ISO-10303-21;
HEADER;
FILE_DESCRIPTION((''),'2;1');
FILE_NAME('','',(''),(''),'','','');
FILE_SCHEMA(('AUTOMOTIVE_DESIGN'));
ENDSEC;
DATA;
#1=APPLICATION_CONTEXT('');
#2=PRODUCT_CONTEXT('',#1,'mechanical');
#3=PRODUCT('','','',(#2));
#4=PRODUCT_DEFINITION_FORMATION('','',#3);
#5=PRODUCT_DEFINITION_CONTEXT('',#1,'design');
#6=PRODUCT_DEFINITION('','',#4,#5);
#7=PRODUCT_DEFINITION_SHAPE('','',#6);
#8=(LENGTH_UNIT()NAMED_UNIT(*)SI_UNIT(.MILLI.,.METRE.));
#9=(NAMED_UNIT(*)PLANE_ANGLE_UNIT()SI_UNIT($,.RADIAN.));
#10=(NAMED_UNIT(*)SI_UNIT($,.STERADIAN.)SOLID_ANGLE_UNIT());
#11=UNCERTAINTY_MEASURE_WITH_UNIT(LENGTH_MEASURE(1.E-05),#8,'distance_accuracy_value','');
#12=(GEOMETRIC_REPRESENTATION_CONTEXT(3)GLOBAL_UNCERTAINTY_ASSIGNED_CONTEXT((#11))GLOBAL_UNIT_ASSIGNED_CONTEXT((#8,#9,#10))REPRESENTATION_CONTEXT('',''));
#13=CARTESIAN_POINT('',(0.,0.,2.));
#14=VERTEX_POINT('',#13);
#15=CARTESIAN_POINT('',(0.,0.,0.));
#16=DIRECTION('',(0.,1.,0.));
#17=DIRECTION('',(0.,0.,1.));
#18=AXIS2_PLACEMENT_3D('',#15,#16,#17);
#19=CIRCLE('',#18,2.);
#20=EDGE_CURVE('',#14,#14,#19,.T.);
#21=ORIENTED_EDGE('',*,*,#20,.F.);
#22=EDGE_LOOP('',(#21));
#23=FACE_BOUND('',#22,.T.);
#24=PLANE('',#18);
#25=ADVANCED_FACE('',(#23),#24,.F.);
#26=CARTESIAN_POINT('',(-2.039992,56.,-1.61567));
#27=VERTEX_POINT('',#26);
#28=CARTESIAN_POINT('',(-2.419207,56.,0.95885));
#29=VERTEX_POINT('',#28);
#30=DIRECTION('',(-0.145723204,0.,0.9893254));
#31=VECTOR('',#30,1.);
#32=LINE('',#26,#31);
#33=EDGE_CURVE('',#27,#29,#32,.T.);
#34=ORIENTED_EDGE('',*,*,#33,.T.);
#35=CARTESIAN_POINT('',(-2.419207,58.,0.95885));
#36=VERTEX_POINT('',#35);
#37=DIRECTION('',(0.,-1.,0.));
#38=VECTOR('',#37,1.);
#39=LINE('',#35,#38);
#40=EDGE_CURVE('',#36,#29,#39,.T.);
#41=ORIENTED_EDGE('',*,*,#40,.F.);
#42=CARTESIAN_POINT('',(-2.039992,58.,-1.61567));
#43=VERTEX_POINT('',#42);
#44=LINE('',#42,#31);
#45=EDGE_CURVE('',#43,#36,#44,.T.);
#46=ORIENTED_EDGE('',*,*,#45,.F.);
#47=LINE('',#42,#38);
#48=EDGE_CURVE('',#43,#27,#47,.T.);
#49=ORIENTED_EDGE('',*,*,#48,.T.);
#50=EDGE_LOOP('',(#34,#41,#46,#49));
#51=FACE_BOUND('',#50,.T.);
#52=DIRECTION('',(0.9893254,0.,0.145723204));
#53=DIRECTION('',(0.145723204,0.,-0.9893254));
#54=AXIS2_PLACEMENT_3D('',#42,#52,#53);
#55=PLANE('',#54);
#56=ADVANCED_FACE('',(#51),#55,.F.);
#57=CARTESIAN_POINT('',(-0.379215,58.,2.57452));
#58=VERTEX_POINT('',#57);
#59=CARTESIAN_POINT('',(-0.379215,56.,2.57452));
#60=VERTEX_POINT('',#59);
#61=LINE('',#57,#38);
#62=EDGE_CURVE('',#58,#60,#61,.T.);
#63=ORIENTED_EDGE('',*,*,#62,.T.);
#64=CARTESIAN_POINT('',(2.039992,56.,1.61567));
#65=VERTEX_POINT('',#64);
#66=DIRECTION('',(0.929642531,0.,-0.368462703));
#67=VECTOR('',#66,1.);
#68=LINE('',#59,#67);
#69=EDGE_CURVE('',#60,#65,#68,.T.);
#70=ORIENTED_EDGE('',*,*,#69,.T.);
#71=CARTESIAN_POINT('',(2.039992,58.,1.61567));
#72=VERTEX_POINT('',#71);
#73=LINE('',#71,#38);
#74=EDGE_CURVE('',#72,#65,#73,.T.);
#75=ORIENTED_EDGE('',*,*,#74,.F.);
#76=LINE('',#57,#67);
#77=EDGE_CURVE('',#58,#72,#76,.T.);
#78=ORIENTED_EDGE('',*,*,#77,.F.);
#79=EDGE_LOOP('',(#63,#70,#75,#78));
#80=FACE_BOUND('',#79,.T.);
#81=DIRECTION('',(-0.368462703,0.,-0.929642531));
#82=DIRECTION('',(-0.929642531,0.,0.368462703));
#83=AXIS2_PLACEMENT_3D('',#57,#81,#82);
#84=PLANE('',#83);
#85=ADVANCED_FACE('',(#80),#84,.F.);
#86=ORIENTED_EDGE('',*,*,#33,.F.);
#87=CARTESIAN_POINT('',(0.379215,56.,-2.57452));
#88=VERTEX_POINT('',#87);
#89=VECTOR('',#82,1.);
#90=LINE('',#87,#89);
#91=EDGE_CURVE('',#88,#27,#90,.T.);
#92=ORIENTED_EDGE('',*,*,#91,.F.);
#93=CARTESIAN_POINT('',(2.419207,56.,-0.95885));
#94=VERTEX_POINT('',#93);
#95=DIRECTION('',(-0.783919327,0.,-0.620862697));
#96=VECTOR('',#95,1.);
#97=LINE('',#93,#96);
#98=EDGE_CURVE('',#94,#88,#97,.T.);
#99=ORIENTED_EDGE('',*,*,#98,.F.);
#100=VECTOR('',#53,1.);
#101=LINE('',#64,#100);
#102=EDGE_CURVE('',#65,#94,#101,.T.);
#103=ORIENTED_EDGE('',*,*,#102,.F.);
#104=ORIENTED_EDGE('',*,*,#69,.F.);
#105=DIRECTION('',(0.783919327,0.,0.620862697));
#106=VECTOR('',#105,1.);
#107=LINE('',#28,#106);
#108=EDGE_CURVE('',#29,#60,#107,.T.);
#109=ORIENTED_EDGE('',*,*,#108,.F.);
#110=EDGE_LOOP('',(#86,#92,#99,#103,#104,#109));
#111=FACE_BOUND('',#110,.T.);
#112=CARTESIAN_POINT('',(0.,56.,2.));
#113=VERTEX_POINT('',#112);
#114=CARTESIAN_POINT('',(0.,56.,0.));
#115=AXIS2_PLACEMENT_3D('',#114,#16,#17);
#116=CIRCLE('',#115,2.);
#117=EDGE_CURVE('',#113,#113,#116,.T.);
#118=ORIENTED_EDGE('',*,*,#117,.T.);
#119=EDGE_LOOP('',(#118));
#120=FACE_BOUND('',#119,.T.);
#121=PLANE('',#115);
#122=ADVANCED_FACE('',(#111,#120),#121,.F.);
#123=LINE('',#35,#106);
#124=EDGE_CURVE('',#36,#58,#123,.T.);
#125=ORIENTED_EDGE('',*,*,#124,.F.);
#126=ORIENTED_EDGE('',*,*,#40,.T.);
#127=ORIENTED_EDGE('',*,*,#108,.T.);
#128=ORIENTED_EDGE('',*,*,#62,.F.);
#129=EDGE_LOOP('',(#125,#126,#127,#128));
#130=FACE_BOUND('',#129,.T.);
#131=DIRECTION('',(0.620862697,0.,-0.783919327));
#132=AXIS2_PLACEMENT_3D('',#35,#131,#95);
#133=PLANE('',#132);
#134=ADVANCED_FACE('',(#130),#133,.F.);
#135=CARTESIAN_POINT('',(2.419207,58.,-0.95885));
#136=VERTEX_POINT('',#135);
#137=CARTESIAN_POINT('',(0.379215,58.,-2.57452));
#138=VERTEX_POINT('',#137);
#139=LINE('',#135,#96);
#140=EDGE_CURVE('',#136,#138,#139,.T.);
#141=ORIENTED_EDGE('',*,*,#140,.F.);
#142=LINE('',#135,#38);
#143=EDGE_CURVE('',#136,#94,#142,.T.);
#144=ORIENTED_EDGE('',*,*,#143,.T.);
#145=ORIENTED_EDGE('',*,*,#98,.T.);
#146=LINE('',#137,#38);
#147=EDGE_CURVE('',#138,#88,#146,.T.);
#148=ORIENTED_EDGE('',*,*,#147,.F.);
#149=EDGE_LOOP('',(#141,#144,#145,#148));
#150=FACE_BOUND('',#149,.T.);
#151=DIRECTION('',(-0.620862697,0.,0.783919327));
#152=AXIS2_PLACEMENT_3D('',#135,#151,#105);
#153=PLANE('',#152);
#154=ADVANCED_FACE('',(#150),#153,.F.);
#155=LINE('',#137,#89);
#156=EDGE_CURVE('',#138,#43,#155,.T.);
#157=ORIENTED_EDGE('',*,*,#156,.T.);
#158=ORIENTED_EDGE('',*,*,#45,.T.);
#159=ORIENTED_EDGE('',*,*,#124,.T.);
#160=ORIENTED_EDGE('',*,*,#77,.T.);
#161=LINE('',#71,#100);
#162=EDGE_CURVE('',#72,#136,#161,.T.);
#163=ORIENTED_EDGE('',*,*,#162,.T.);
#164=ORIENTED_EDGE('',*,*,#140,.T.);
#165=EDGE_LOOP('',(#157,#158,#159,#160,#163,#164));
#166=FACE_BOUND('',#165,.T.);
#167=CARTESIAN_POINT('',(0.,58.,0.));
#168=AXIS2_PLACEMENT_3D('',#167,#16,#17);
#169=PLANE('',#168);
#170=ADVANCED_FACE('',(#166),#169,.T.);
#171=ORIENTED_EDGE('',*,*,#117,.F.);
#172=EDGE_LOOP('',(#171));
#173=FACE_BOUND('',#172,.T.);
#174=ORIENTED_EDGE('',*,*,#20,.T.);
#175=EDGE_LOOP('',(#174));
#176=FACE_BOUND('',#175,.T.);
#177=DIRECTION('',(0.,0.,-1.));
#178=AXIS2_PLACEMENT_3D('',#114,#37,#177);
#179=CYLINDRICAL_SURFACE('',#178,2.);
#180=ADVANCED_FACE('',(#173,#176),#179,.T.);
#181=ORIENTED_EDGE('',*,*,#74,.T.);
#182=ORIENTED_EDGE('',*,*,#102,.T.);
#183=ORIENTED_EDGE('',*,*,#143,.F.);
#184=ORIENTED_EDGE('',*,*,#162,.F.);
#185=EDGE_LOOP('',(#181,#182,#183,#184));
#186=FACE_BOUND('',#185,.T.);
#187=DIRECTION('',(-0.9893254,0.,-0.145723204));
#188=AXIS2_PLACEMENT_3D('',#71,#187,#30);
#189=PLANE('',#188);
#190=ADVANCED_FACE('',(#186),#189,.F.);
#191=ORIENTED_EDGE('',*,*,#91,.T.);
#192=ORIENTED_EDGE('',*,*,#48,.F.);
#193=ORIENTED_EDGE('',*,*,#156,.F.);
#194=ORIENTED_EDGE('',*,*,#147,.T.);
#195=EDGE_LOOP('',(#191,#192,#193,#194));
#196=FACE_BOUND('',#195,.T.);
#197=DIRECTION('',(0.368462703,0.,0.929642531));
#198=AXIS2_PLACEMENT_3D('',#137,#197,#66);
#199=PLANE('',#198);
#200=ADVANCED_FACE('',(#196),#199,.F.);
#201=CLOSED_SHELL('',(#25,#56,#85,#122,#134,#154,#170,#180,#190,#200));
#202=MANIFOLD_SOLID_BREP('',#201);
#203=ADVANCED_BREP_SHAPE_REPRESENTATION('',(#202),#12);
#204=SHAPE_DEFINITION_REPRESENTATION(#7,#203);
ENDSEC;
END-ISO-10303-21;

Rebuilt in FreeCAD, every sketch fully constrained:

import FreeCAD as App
import Part
import Sketcher

V = App.Vector
Q = App.Units.Quantity

doc = App.newDocument("Part")
body = doc.addObject("PartDesign::Body", "Body")

sketch1 = body.newObject("Sketcher::SketchObject", "Sketch")
sketch1.AttachmentSupport = (doc.getObject("XZ_Plane"), [""])
sketch1.MapMode = "FlatFace"
sketch1.addGeometry(Part.Circle(V(0, 0, 0), V(0, 0, 1), 2), False)
sketch1.addConstraint([
    Sketcher.Constraint("Coincident", 0, 3, -1, 1),
    Sketcher.Constraint("Diameter", 0, Q("4 mm")),
])
pad1 = body.newObject("PartDesign::Pad", "Pad")
pad1.Profile = sketch1
pad1.Length = 56
pad1.Reversed = True

sketch2 = body.newObject("Sketcher::SketchObject", "Sketch001")
sketch2.AttachmentSupport = (doc.getObject("XZ_Plane"), [""])
sketch2.MapMode = "FlatFace"
sketch2.AttachmentOffset = App.Placement(V(0, 0, -56), App.Rotation())
sketch2.addGeometry([
    Part.LineSegment(V(2.039992, 1.61567, 0), V(2.419207, -0.95885, 0)),
    Part.LineSegment(V(2.419207, -0.95885, 0), V(0.379215, -2.57452, 0)),
    Part.LineSegment(V(0.379215, -2.57452, 0), V(-2.039992, -1.61567, 0)),
    Part.LineSegment(V(-2.039992, -1.61567, 0), V(-2.419207, 0.95885, 0)),
    Part.LineSegment(V(-2.419207, 0.95885, 0), V(-0.379215, 2.57452, 0)),
    Part.LineSegment(V(-0.379215, 2.57452, 0), V(2.039992, 1.61567, 0)),
], False)
sketch2.addConstraint([
    Sketcher.Constraint("Coincident", 0, 2, 1, 1),
    Sketcher.Constraint("Coincident", 1, 2, 2, 1),
    Sketcher.Constraint("Coincident", 2, 2, 3, 1),
    Sketcher.Constraint("Coincident", 3, 2, 4, 1),
    Sketcher.Constraint("Coincident", 4, 2, 5, 1),
    Sketcher.Constraint("Coincident", 5, 2, 0, 1),
    Sketcher.Constraint("Symmetric", 0, 2, 3, 2, -1, 1),
    Sketcher.Constraint("Symmetric", 1, 2, 4, 2, -1, 1),
    Sketcher.Constraint("Symmetric", 2, 2, 5, 2, -1, 1),
    Sketcher.Constraint("Equal", 0, 1),
    Sketcher.Constraint("Equal", 1, 2),
    Sketcher.Constraint("Distance", 0, Q("2.602298 mm")),
    Sketcher.Constraint("DistanceX", 2, 2, 0, 2, Q("4.459199 mm")),
    Sketcher.Constraint("DistanceY", 0, 2, 3, 2, Q("1.9177 mm")),
    Sketcher.Constraint("DistanceY", 1, 2, -1, 1, Q("2.57452 mm")),
])
pad2 = body.newObject("PartDesign::Pad", "Pad001")
pad2.Profile = sketch2
pad2.Length = 2
pad2.Reversed = True

doc.recompute()
